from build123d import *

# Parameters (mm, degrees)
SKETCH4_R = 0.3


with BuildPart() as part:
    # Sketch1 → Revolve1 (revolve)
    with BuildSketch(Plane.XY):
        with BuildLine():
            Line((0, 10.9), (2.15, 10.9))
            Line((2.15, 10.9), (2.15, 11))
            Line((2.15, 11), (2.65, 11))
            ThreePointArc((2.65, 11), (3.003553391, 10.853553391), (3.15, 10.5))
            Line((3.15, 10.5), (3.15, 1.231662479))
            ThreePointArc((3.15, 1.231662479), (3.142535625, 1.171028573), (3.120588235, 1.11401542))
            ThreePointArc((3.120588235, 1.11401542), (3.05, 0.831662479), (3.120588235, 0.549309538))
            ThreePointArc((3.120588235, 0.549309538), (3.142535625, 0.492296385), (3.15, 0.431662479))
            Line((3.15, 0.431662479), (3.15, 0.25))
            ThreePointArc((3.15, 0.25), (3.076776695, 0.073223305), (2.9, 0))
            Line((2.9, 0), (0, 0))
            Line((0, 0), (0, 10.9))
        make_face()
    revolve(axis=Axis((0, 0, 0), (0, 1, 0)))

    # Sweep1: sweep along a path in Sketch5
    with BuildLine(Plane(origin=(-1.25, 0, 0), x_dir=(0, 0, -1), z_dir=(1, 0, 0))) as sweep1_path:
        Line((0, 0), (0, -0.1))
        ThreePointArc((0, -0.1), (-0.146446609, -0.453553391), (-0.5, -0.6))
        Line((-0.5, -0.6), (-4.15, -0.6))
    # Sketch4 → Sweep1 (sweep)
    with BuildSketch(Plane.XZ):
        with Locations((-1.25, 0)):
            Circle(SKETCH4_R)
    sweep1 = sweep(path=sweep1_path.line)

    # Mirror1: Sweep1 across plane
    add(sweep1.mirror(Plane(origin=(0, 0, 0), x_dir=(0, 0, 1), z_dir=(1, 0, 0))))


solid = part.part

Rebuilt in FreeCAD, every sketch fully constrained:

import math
import FreeCAD as App
import Part
import Sketcher

V = App.Vector
Q = App.Units.Quantity

doc = App.newDocument("Part")
body = doc.addObject("PartDesign::Body", "Body")

# Sketch on XY plane
sketch1 = body.newObject("Sketcher::SketchObject", "Sketch")
sketch1.AttachmentSupport = (doc.getObject("XY_Plane"), [""])
sketch1.MapMode = "FlatFace"
sketch1.addGeometry([
    Part.LineSegment(V(2.15, 10.9, 0), V(0, 10.9, 0)),  # 0
    Part.LineSegment(V(0, 10.9, 0), V(0, 0, 0)),  # 1
    Part.LineSegment(V(0, 0, 0), V(2.9, 0, 0)),  # 2
    Part.ArcOfCircle(Part.Circle(V(2.9, 0.25, 0), V(0, 0, 1), 0.25), math.radians(-90), math.radians(0)),  # 3
    Part.LineSegment(V(3.15, 0.25, 0), V(3.15, 0.43, 0)),  # 4
    Part.ArcOfCircle(Part.Circle(V(2.9, 0.43, 0), V(0, 0, 1), 0.25), math.radians(0), math.radians(28)),  # 5
    Part.ArcOfCircle(Part.Circle(V(3.65, 0.83, 0), V(0, 0, 1), 0.6), math.radians(152), math.radians(208)),  # 6
    Part.ArcOfCircle(Part.Circle(V(2.9, 1.23, 0), V(0, 0, 1), 0.25), math.radians(-28), math.radians(0)),  # 7
    Part.LineSegment(V(3.15, 1.23, 0), V(3.15, 10.5, 0)),  # 8
    Part.ArcOfCircle(Part.Circle(V(2.65, 10.5, 0), V(0, 0, 1), 0.5), math.radians(0), math.radians(90)),  # 9
    Part.LineSegment(V(2.65, 11, 0), V(2.15, 11, 0)),  # 10
    Part.LineSegment(V(2.15, 11, 0), V(2.15, 10.9, 0)),  # 11
], False)
sketch1.addConstraint([
    Sketcher.Constraint("Coincident", 0, 2, 1, 1),
    Sketcher.Constraint("Coincident", 1, 2, 2, 1),
    Sketcher.Constraint("Tangent", 2, 2, 3, 1),
    Sketcher.Constraint("Tangent", 3, 2, 4, 1),
    Sketcher.Constraint("Tangent", 4, 2, 5, 1),
    Sketcher.Constraint("Tangent", 5, 2, 6, 2),
    Sketcher.Constraint("Tangent", 6, 1, 7, 1),
    Sketcher.Constraint("Tangent", 7, 2, 8, 1),
    Sketcher.Constraint("Tangent", 8, 2, 9, 1),
    Sketcher.Constraint("Tangent", 9, 2, 10, 1),
    Sketcher.Constraint("Coincident", 10, 2, 11, 1),
    Sketcher.Constraint("Coincident", 11, 2, 0, 1),
    Sketcher.Constraint("Horizontal", 0),
    Sketcher.Constraint("Vertical", 1),
    Sketcher.Constraint("Horizontal", 2),
    Sketcher.Constraint("Vertical", 4),
    Sketcher.Constraint("Vertical", 8),
    Sketcher.Constraint("Horizontal", 10),
    Sketcher.Constraint("Vertical", 11),
    Sketcher.Constraint("Coincident", 1, 2, -1, 1),
    Sketcher.Constraint("Equal", 3, 5),
    Sketcher.Constraint("Equal", 5, 7),
    Sketcher.Constraint("Vertical", 5, 3, 7, 3),
    Sketcher.Constraint("Radius", 6, Q("0.6 mm")),
    Sketcher.Constraint("Radius", 9, Q("0.5 mm")),
    Sketcher.Constraint("Radius", 3, Q("0.25 mm")),
    Sketcher.Constraint("DistanceX", 2, 1, 2, 2, Q("2.9 mm")),
    Sketcher.Constraint("DistanceX", 10, 2, 10, 1, Q("0.5 mm")),
    Sketcher.Constraint("DistanceY", 1, 2, 1, 1, Q("10.9 mm")),
    Sketcher.Constraint("DistanceY", 11, 2, 11, 1, Q("0.1 mm")),
    Sketcher.Constraint("DistanceX", 9, 3, 6, 3, Q("1 mm")),
    Sketcher.Constraint("DistanceY", 4, 1, 4, 2, Q("0.181662 mm")),
])
revolution = body.newObject("PartDesign::Revolution", "Revolution")
revolution.Profile = sketch1
revolution.ReferenceAxis = (sketch1, ["V_Axis"])
revolution.Angle = 360

# Sketch on XZ plane
sketch2 = body.newObject("Sketcher::SketchObject", "Sketch001")
sketch2.AttachmentSupport = (doc.getObject("XZ_Plane"), [""])
sketch2.MapMode = "FlatFace"
sketch2.addGeometry(Part.Circle(V(-1.25, 0, 0), V(0, 0, 1), 0.3), False)
sketch2.addConstraint([
    Sketcher.Constraint("PointOnObject", 0, 3, -1),
    Sketcher.Constraint("Diameter", 0, Q("0.6 mm")),
    Sketcher.Constraint("DistanceX", 0, 3, -1, 1, Q("1.25 mm")),
])

# Sketch on YZ plane
sketch3 = body.newObject("Sketcher::SketchObject", "Sketch002")
sketch3.AttachmentSupport = (doc.getObject("YZ_Plane"), [""])
sketch3.MapMode = "FlatFace"
sketch3.AttachmentOffset = App.Placement(V(0, 0, -1.25), App.Rotation())
sketch3.addGeometry([
    Part.LineSegment(V(0, 0, 0), V(-0.1, 0, 0)),
    Part.ArcOfCircle(Part.Circle(V(-0.1, 0.5, 0), V(0, 0, 1), 0.5), math.radians(180), math.radians(270)),
    Part.LineSegment(V(-0.6, 0.5, 0), V(-0.6, 4.15, 0)),
], False)
sketch3.addConstraint([
    Sketcher.Constraint("Tangent", 0, 2, 1, 2),
    Sketcher.Constraint("Tangent", 1, 1, 2, 1),
    Sketcher.Constraint("Horizontal", 0),
    Sketcher.Constraint("Vertical", 2),
    Sketcher.Constraint("Coincident", 0, 1, -1, 1),
    Sketcher.Constraint("Radius", 1, Q("0.5 mm")),
    Sketcher.Constraint("DistanceX", 0, 2, 0, 1, Q("0.1 mm")),
    Sketcher.Constraint("DistanceY", 2, 1, 2, 2, Q("3.65 mm")),
])
doc.recompute()

additivepipe = body.newObject("PartDesign::AdditivePipe", "AdditivePipe")
additivepipe.Profile = sketch2
additivepipe.Spine = (sketch3, ["Edge1", "Edge2", "Edge3"])
doc.recompute()

mirrored = body.newObject("PartDesign::Mirrored", "Mirrored")
mirrored.Originals = [additivepipe]
mirrored.MirrorPlane = (doc.getObject("YZ_Plane"), [""])
body.Tip = mirrored

doc.recompute()
